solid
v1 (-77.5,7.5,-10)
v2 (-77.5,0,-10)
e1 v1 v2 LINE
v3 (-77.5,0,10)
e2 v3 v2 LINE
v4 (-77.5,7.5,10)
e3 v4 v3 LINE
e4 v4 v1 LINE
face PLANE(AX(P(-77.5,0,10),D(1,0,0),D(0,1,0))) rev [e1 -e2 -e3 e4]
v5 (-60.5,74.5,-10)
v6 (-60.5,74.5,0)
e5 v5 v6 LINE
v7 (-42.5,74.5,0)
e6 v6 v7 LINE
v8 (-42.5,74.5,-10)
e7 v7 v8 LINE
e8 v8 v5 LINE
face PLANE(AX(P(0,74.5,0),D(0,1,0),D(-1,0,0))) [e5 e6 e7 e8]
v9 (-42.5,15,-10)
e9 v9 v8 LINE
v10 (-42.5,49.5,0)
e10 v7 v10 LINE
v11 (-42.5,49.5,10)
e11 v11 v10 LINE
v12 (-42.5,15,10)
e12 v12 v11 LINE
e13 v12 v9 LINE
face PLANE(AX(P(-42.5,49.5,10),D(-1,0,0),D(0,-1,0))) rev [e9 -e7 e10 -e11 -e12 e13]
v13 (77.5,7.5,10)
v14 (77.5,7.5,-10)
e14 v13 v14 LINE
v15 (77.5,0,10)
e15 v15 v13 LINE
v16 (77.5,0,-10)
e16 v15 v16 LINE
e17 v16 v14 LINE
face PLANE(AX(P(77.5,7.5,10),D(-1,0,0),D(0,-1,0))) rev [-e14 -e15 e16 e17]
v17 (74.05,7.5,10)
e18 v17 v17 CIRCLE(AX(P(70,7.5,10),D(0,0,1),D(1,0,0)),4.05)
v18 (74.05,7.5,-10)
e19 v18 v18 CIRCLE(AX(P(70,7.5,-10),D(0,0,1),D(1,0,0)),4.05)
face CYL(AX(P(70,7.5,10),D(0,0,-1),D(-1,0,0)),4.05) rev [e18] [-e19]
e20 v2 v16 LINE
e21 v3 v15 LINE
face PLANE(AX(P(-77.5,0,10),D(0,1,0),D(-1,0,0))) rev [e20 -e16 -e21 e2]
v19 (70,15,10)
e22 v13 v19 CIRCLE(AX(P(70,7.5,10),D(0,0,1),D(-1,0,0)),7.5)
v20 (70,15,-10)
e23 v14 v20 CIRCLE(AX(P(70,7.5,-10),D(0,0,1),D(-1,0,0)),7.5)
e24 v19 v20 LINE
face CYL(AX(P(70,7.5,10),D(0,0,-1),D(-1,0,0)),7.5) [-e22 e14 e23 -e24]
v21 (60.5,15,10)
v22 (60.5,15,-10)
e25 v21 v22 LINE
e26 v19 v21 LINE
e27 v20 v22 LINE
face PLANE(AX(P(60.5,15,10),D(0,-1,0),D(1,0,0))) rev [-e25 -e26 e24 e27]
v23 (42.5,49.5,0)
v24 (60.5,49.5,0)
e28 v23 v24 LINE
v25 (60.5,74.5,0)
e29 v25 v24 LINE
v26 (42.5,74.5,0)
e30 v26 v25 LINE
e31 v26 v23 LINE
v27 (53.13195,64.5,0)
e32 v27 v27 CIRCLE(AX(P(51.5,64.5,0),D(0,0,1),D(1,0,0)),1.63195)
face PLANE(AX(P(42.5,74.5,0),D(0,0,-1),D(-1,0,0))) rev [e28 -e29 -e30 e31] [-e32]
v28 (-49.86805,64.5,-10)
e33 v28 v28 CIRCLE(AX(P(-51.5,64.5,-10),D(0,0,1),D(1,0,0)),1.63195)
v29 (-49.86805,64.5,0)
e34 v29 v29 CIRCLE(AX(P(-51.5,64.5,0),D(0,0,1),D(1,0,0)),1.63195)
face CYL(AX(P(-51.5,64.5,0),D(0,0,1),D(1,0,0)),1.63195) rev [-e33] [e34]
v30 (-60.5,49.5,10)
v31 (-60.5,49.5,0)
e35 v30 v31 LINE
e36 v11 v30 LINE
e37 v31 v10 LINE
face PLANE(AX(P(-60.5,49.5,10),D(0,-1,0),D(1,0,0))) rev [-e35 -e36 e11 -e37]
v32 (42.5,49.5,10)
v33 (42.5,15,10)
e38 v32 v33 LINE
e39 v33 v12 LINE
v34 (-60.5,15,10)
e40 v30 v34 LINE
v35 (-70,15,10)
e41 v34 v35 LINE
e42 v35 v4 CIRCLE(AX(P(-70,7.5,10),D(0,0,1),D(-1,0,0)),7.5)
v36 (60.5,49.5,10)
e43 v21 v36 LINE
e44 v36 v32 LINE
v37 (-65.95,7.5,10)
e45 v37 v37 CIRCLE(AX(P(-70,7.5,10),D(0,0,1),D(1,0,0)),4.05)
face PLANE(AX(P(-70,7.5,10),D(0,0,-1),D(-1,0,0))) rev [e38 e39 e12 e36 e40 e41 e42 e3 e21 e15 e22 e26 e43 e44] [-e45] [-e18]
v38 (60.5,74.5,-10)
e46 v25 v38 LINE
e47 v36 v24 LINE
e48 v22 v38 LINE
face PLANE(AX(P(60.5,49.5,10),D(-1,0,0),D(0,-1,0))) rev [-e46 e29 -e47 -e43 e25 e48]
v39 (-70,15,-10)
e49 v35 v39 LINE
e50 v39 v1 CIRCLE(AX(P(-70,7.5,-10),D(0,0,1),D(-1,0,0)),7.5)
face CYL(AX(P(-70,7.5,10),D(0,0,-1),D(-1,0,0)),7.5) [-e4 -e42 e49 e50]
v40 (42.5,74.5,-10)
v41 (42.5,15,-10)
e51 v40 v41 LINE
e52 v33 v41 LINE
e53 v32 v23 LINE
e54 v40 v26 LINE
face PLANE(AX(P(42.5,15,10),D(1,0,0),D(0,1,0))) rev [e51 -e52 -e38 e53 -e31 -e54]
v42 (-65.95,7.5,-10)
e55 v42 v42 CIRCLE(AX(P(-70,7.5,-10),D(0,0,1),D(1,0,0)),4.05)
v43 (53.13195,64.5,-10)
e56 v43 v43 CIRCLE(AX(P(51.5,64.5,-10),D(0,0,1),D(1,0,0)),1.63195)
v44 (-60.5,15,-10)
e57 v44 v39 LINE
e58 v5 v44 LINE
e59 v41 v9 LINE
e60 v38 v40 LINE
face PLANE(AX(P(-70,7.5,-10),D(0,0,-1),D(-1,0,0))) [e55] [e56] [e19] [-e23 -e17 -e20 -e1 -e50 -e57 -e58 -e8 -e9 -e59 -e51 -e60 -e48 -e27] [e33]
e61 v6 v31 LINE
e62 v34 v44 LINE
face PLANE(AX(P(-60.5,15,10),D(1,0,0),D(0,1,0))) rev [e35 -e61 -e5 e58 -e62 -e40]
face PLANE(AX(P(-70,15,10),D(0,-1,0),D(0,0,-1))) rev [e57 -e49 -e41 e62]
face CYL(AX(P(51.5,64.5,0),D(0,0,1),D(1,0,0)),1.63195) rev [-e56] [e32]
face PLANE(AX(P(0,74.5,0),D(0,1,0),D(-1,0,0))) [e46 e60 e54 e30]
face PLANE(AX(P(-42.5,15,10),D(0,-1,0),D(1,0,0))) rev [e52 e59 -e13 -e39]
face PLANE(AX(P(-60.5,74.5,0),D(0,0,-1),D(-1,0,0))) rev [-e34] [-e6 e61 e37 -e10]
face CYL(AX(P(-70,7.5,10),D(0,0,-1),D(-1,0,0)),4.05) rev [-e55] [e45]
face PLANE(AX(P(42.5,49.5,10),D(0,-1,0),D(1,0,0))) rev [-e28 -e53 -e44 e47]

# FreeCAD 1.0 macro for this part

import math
import FreeCAD as App
import Part
import Sketcher

V = App.Vector
Q = App.Units.Quantity

doc = App.newDocument("Part")
params = doc.addObject("Spreadsheet::Sheet", "Params")
for row, (alias, value) in enumerate([
    ("sketch1_diameter", "8.1 mm"),
    ("sketch1_radius", "7.5 mm"),
    ("sketch1_width", "155 mm"),
    ("sketch1_width2", "18 mm"),
    ("sketch1_width3", "85 mm"),
    ("pad1_length", "20 mm"),
    ("sketch2_width", "18 mm"),
    ("sketch2_height", "10 mm"),
    ("pad2_length", "25 mm"),
    ("hole_diameter", "3.2639 mm"),
], start=1):
    params.set(f"A{row}", alias)
    params.set(f"B{row}", "=" + value)
    params.setAlias(f"B{row}", alias)

body = doc.addObject("PartDesign::Body", "Body")

sketch1 = body.newObject("Sketcher::SketchObject", "Sketch")
sketch1.AttachmentSupport = (doc.getObject("XY_Plane"), [""])
sketch1.MapMode = "FlatFace"
sketch1.addGeometry(Part.LineSegment(V(-77.5, 0, 0), V(77.5, 0, 0)), False)
sketch1.addGeometry(Part.LineSegment(V(77.5, 0, 0), V(77.5, 7.5, 0)), False)
sketch1.addGeometry(Part.ArcOfCircle(Part.Circle(V(70, 7.5, 0), V(0, 0, 1), 7.5), math.radians(0), math.radians(90)), False)
sketch1.addGeometry(Part.LineSegment(V(70, 15, 0), V(60.5, 15, 0)), False)
sketch1.addGeometry(Part.LineSegment(V(60.5, 15, 0), V(60.5, 49.5, 0)), False)
sketch1.addGeometry(Part.LineSegment(V(60.5, 49.5, 0), V(42.5, 49.5, 0)), False)
sketch1.addGeometry(Part.LineSegment(V(42.5, 49.5, 0), V(42.5, 15, 0)), False)
sketch1.addGeometry(Part.LineSegment(V(42.5, 15, 0), V(-42.5, 15, 0)), False)
sketch1.addGeometry(Part.LineSegment(V(-42.5, 15, 0), V(-42.5, 49.5, 0)), False)
sketch1.addGeometry(Part.LineSegment(V(-42.5, 49.5, 0), V(-60.5, 49.5, 0)), False)
sketch1.addGeometry(Part.LineSegment(V(-60.5, 49.5, 0), V(-60.5, 15, 0)), False)
sketch1.addGeometry(Part.LineSegment(V(-60.5, 15, 0), V(-70, 15, 0)), False)
sketch1.addGeometry(Part.ArcOfCircle(Part.Circle(V(-70, 7.5, 0), V(0, 0, 1), 7.5), math.radians(90), math.radians(180)), False)
sketch1.addGeometry(Part.LineSegment(V(-77.5, 7.5, 0), V(-77.5, 0, 0)), False)
sketch1.addGeometry(Part.Circle(V(-70, 7.5, 0), V(0, 0, 1), 4), False)
sketch1.addGeometry(Part.Circle(V(70, 7.5, 0), V(0, 0, 1), 4), False)
sketch1.addConstraint(Sketcher.Constraint("Coincident", 0, 2, 1, 1))
sketch1.addConstraint(Sketcher.Constraint("Tangent", 1, 2, 2, 1))
sketch1.addConstraint(Sketcher.Constraint("Tangent", 2, 2, 3, 1))
sketch1.addConstraint(Sketcher.Constraint("Coincident", 3, 2, 4, 1))
sketch1.addConstraint(Sketcher.Constraint("Coincident", 4, 2, 5, 1))
sketch1.addConstraint(Sketcher.Constraint("Coincident", 5, 2, 6, 1))
sketch1.addConstraint(Sketcher.Constraint("Coincident", 6, 2, 7, 1))
sketch1.addConstraint(Sketcher.Constraint("Coincident", 7, 2, 8, 1))
sketch1.addConstraint(Sketcher.Constraint("Coincident", 8, 2, 9, 1))
sketch1.addConstraint(Sketcher.Constraint("Coincident", 9, 2, 10, 1))
sketch1.addConstraint(Sketcher.Constraint("Coincident", 10, 2, 11, 1))
sketch1.addConstraint(Sketcher.Constraint("Tangent", 11, 2, 12, 1))
sketch1.addConstraint(Sketcher.Constraint("Tangent", 12, 2, 13, 1))
sketch1.addConstraint(Sketcher.Constraint("Coincident", 13, 2, 0, 1))
sketch1.addConstraint(Sketcher.Constraint("Horizontal", 0))
sketch1.addConstraint(Sketcher.Constraint("Vertical", 1))
sketch1.addConstraint(Sketcher.Constraint("Horizontal", 3))
sketch1.addConstraint(Sketcher.Constraint("Vertical", 4))
sketch1.addConstraint(Sketcher.Constraint("Horizontal", 5))
sketch1.addConstraint(Sketcher.Constraint("Vertical", 6))
sketch1.addConstraint(Sketcher.Constraint("Horizontal", 7))
sketch1.addConstraint(Sketcher.Constraint("Vertical", 8))
sketch1.addConstraint(Sketcher.Constraint("Horizontal", 9))
sketch1.addConstraint(Sketcher.Constraint("Vertical", 10))
sketch1.addConstraint(Sketcher.Constraint("Horizontal", 11))
sketch1.addConstraint(Sketcher.Constraint("Vertical", 13))
sketch1.addConstraint(Sketcher.Constraint("Coincident", 14, 3, 12, 3))
sketch1.addConstraint(Sketcher.Constraint("Coincident", 15, 3, 2, 3))
sketch1.addConstraint(Sketcher.Constraint("Equal", 2, 12))
sketch1.addConstraint(Sketcher.Constraint("Equal", 14, 15))
sketch1.addConstraint(Sketcher.Constraint("Symmetric", 0, 2, 13, 2, -1, 1))
sketch1.addConstraint(Sketcher.Constraint("Symmetric", 5, 2, 8, 2, -2))
sketch1.addConstraint(Sketcher.Constraint("Symmetric", 3, 2, 10, 2, -2))
sketch1.addConstraint(Sketcher.Constraint("Horizontal", 3, 2, 6, 2))
sketch1.addConstraint(Sketcher.Constraint("Diameter", 14, Q("8.1 mm")))
sketch1.addConstraint(Sketcher.Constraint("Radius", 2, Q("7.5 mm")))
sketch1.addConstraint(Sketcher.Constraint("DistanceX", 0, 1, 0, 2, Q("155 mm")))
sketch1.addConstraint(Sketcher.Constraint("DistanceX", 5, 2, 5, 1, Q("18 mm")))
sketch1.addConstraint(Sketcher.Constraint("DistanceX", 7, 2, 7, 1, Q("85 mm")))
sketch1.addConstraint(Sketcher.Constraint("DistanceY", 1, 1, 1, 2, Q("7.5 mm")))
sketch1.addConstraint(Sketcher.Constraint("DistanceY", 4, 1, 4, 2, Q("34.5 mm")))
sketch1.setExpression("Constraints[34]", "Params.sketch1_diameter")
sketch1.setExpression("Constraints[35]", "Params.sketch1_radius")
sketch1.setExpression("Constraints[36]", "Params.sketch1_width")
sketch1.setExpression("Constraints[37]", "Params.sketch1_width2")
sketch1.setExpression("Constraints[38]", "Params.sketch1_width3")
pad1 = body.newObject("PartDesign::Pad", "Pad")
pad1.Profile = sketch1
pad1.setExpression("Length", "Params.pad1_length")
pad1.Midplane = True

sketch2 = body.newObject("Sketcher::SketchObject", "Sketch001")
sketch2.AttachmentSupport = (doc.getObject("XZ_Plane"), [""])
sketch2.MapMode = "FlatFace"
sketch2.AttachmentOffset = App.Placement(V(0, 0, -49.5), App.Rotation())
sketch2.addGeometry(Part.LineSegment(V(42, -10, 0), V(42, 0, 0)), False)
sketch2.addGeometry(Part.LineSegment(V(42, 0, 0), V(60, 0, 0)), False)
sketch2.addGeometry(Part.LineSegment(V(60, 0, 0), V(60, -10, 0)), False)
sketch2.addGeometry(Part.LineSegment(V(60, -10, 0), V(42, -10, 0)), False)
sketch2.addGeometry(Part.LineSegment(V(-60, -10, 0), V(-60, 0, 0)), False)
sketch2.addGeometry(Part.LineSegment(V(-60, 0, 0), V(-42, 0, 0)), False)
sketch2.addGeometry(Part.LineSegment(V(-42, 0, 0), V(-42, -10, 0)), False)
sketch2.addGeometry(Part.LineSegment(V(-42, -10, 0), V(-60, -10, 0)), False)
sketch2.addConstraint(Sketcher.Constraint("Coincident", 0, 2, 1, 1))
sketch2.addConstraint(Sketcher.Constraint("Coincident", 1, 2, 2, 1))
sketch2.addConstraint(Sketcher.Constraint("Coincident", 2, 2, 3, 1))
sketch2.addConstraint(Sketcher.Constraint("Coincident", 3, 2, 0, 1))
sketch2.addConstraint(Sketcher.Constraint("Coincident", 4, 2, 5, 1))
sketch2.addConstraint(Sketcher.Constraint("Coincident", 5, 2, 6, 1))
sketch2.addConstraint(Sketcher.Constraint("Coincident", 6, 2, 7, 1))
sketch2.addConstraint(Sketcher.Constraint("Coincident", 7, 2, 4, 1))
sketch2.addConstraint(Sketcher.Constraint("Vertical", 0))
sketch2.addConstraint(Sketcher.Constraint("Horizontal", 1))
sketch2.addConstraint(Sketcher.Constraint("Vertical", 2))
sketch2.addConstraint(Sketcher.Constraint("Horizontal", 3))
sketch2.addConstraint(Sketcher.Constraint("Vertical", 4))
sketch2.addConstraint(Sketcher.Constraint("Horizontal", 5))
sketch2.addConstraint(Sketcher.Constraint("Vertical", 6))
sketch2.addConstraint(Sketcher.Constraint("Horizontal", 7))
sketch2.addConstraint(Sketcher.Constraint("Symmetric", 1, 2, 4, 2, -1, 1))
sketch2.addConstraint(Sketcher.Constraint("Symmetric", 0, 2, 5, 2, -2))
sketch2.addConstraint(Sketcher.Constraint("Horizontal", 3, 2, 6, 2))
sketch2.addConstraint(Sketcher.Constraint("DistanceX", 1, 1, 1, 2, Q("18 mm")))
sketch2.addConstraint(Sketcher.Constraint("DistanceY", 0, 1, 0, 2, Q("10 mm")))
sketch2.addConstraint(Sketcher.Constraint("DistanceX", 4, 2, 0, 2, Q("103 mm")))
sketch2.setExpression("Constraints[19]", "Params.sketch2_width")
sketch2.setExpression("Constraints[20]", "Params.sketch2_height")
pad2 = body.newObject("PartDesign::Pad", "Pad001")
pad2.Profile = sketch2
pad2.setExpression("Length", "Params.pad2_length")
pad2.Reversed = True

sketch3 = body.newObject("Sketcher::SketchObject", "Sketch002")
sketch3.AttachmentSupport = (doc.getObject("XY_Plane"), [""])
sketch3.MapMode = "FlatFace"
sketch3.addGeometry(Part.Circle(V(-51.5, 64.5, 0), V(0, 0, 1), 1.6), False)
sketch3.addGeometry(Part.Circle(V(51.5, 64.5, 0), V(0, 0, 1), 1.6), False)
sketch3.addConstraint(Sketcher.Constraint("Equal", 0, 1))
sketch3.addConstraint(Sketcher.Constraint("Symmetric", 0, 3, 1, 3, -2))
sketch3.addConstraint(Sketcher.Constraint("DistanceX", 0, 3, 1, 3, Q("103 mm")))
sketch3.addConstraint(Sketcher.Constraint("Diameter", 0, Q("3.2639 mm")))
sketch3.addConstraint(Sketcher.Constraint("DistanceY", -1, 1, 0, 3, Q("64.5 mm")))
doc.recompute()
hole = body.newObject("PartDesign::Hole", "Hole")
hole.Profile = sketch3
hole.ThreadType = "None"
hole.setExpression("Diameter", "Params.hole_diameter")
hole.DepthType = "ThroughAll"

doc.recompute()
